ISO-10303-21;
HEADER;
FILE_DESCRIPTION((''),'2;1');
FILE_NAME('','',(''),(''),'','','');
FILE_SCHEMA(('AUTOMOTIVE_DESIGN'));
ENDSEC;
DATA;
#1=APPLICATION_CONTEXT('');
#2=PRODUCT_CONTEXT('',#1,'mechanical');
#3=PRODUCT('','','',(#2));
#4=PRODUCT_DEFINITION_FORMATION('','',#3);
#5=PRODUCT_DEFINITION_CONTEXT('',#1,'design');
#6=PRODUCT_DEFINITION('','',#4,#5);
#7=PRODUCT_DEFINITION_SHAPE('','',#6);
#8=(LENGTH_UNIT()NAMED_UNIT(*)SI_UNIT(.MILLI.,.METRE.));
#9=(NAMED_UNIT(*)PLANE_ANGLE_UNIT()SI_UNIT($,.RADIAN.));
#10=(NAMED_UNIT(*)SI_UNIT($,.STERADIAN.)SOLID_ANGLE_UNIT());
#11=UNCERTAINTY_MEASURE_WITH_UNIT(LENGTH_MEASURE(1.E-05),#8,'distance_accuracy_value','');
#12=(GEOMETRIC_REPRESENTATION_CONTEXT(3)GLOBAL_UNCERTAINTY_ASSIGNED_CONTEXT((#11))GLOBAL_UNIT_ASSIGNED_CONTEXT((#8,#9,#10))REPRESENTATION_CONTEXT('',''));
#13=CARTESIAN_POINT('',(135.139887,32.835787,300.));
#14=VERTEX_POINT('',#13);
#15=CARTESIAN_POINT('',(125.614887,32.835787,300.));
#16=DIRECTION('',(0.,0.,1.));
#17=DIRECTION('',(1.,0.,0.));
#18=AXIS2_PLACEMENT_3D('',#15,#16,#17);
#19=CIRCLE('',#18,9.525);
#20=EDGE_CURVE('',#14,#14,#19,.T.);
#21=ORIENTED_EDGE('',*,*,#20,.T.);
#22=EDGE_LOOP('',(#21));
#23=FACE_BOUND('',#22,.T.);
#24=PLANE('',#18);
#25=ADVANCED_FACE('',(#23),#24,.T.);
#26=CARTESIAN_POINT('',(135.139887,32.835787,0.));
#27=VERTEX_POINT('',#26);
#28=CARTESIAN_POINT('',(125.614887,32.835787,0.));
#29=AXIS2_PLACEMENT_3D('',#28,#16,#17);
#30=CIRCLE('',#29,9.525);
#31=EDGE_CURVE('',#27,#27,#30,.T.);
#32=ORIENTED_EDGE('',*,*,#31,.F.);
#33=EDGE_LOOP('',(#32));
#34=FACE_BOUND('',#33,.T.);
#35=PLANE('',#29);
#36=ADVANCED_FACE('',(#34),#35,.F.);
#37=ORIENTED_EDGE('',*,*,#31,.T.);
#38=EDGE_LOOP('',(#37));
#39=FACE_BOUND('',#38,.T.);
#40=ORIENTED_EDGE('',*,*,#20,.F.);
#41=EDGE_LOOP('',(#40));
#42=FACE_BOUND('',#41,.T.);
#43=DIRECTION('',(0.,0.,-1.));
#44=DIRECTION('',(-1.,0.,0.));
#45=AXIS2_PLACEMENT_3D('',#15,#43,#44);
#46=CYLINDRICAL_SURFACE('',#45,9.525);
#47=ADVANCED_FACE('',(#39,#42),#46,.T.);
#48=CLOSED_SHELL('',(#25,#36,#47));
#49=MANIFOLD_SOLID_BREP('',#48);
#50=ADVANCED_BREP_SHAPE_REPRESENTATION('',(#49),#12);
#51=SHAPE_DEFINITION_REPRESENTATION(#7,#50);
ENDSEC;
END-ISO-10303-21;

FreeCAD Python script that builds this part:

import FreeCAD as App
import Part
import Sketcher

V = App.Vector

doc = App.newDocument("Part")
body = doc.addObject("PartDesign::Body", "Body")

sketch1 = doc.addObject("Sketcher::SketchObject", "Sketch")
body.addObject(sketch1)
sketch1.AttachmentSupport = (doc.XY_Plane, [""])
sketch1.MapMode = "FlatFace"
sketch1.addGeometry(Part.Circle(V(126, 33, 0), V(0, 0, 1), 10), False)
sketch1.addConstraint([
    Sketcher.Constraint("Diameter", 0, 19.05),
    Sketcher.Constraint("DistanceX", -1, 1, 0, 3, 125.614887),
    Sketcher.Constraint("DistanceY", -1, 1, 0, 3, 32.835787),
])
pad1 = doc.addObject("PartDesign::Pad", "Pad")
body.addObject(pad1)
pad1.Profile = sketch1
pad1.Length = 300

doc.recompute()
